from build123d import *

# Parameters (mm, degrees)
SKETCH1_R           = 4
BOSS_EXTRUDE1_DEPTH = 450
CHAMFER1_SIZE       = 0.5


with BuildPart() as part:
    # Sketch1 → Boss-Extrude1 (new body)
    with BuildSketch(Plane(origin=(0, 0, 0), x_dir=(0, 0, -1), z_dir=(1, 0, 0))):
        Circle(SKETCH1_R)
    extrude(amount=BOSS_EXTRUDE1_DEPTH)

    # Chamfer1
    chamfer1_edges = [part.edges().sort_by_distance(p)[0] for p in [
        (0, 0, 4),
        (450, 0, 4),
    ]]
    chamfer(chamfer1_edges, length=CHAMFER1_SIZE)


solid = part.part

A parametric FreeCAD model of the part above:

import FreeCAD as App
import Part
import Sketcher
Q = App.Units.Quantity


def edges_at(feature, points):
    """Names of the edges that pass closest to the given points."""
    edges = feature.Shape.Edges
    near = lambda p: min(range(len(edges)), key=lambda i: edges[i].distToShape(Part.Vertex(*p))[0])
    return sorted({f"Edge{near(p) + 1}" for p in points})

doc = App.newDocument("Part")
body = doc.addObject("PartDesign::Body", "Body")

# Sketch on YZ plane
sketch1 = body.newObject("Sketcher::SketchObject", "Sketch")
sketch1.AttachmentSupport = (doc.getObject("YZ_Plane"), [""])
sketch1.MapMode = "FlatFace"
sketch1.addGeometry(Part.Circle(App.Vector(0, 0, 0), App.Vector(0, 0, 1), 4), False)
sketch1.addConstraint([
    Sketcher.Constraint("Coincident", 0, 3, -1, 1),
    Sketcher.Constraint("Diameter", 0, Q("8 mm")),
])
pad1 = body.newObject("PartDesign::Pad", "Pad")
pad1.Profile = sketch1
pad1.Length = 450
doc.recompute()

chamfer = body.newObject("PartDesign::Chamfer", "Chamfer")
chamfer.Base = (pad1, edges_at(pad1, [(0, 0, 4), (450, 0, 4)]))
chamfer.Size = 0.5

doc.recompute()
